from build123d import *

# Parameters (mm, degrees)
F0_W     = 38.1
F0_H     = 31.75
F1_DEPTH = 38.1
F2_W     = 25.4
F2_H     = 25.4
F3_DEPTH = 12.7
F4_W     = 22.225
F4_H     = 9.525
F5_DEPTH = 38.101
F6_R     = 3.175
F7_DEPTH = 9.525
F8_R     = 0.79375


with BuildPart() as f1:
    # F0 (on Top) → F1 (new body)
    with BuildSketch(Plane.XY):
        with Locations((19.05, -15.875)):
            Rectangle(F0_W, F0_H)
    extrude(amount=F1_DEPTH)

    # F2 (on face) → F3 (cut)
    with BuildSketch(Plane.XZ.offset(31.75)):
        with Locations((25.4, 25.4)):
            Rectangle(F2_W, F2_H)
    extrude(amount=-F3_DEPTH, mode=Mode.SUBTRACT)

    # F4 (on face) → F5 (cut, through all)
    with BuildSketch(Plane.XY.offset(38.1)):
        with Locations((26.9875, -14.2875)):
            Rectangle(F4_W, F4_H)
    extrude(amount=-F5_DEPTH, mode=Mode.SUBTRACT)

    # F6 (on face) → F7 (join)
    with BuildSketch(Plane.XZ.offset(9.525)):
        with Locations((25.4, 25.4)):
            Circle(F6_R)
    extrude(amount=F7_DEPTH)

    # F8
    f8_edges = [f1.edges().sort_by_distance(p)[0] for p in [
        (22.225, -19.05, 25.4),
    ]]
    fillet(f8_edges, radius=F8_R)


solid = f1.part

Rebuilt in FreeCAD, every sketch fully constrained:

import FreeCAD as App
import Part
import Sketcher
Q = App.Units.Quantity


def edges_at(feature, points):
    """Names of the edges that pass closest to the given points."""
    edges = feature.Shape.Edges
    near = lambda p: min(range(len(edges)), key=lambda i: edges[i].distToShape(Part.Vertex(*p))[0])
    return sorted({f"Edge{near(p) + 1}" for p in points})

doc = App.newDocument("Part")
params = doc.addObject("Spreadsheet::Sheet", "Params")
for row, (alias, value) in enumerate([
    ("sketch1_width", "1.5 in"),
    ("sketch1_height", "1.25 in"),
    ("pad1_length", "1.5 in"),
    ("sketch2_width", "1 in"),
    ("pocket1_length", "0.5 in"),
    ("sketch3_width", "0.875 in"),
    ("sketch3_height", "0.375 in"),
    ("sketch4_diameter", "0.25 in"),
    ("pad2_length", "0.375 in"),
    ("fillet_radius", "0.03125 in"),
], start=1):
    params.set(f"A{row}", alias)
    params.set(f"B{row}", "=" + value)
    params.setAlias(f"B{row}", alias)

body = doc.addObject("PartDesign::Body", "Body")

sketch1 = body.newObject("Sketcher::SketchObject", "Sketch")
sketch1.AttachmentSupport = (doc.getObject("XY_Plane"), [""])
sketch1.MapMode = "FlatFace"
sketch1.addGeometry(Part.LineSegment(App.Vector(0, 0, 0), App.Vector(0, -31.75, 0)), False)
sketch1.addGeometry(Part.LineSegment(App.Vector(0, -31.75, 0), App.Vector(38.1, -31.75, 0)), False)
sketch1.addGeometry(Part.LineSegment(App.Vector(38.1, -31.75, 0), App.Vector(38.1, 0, 0)), False)
sketch1.addGeometry(Part.LineSegment(App.Vector(38.1, 0, 0), App.Vector(0, 0, 0)), False)
sketch1.addConstraint(Sketcher.Constraint("Coincident", 0, 2, 1, 1))
sketch1.addConstraint(Sketcher.Constraint("Coincident", 1, 2, 2, 1))
sketch1.addConstraint(Sketcher.Constraint("Coincident", 2, 2, 3, 1))
sketch1.addConstraint(Sketcher.Constraint("Coincident", 3, 2, 0, 1))
sketch1.addConstraint(Sketcher.Constraint("Vertical", 0))
sketch1.addConstraint(Sketcher.Constraint("Horizontal", 1))
sketch1.addConstraint(Sketcher.Constraint("Vertical", 2))
sketch1.addConstraint(Sketcher.Constraint("Horizontal", 3))
sketch1.addConstraint(Sketcher.Constraint("Coincident", 3, 2, -1, 1))
sketch1.addConstraint(Sketcher.Constraint("DistanceX", 1, 1, 1, 2, Q("1.5 in")))
sketch1.addConstraint(Sketcher.Constraint("DistanceY", 0, 2, 0, 1, Q("1.25 in")))
sketch1.setExpression("Constraints[9]", "Params.sketch1_width")
sketch1.setExpression("Constraints[10]", "Params.sketch1_height")
pad1 = body.newObject("PartDesign::Pad", "Pad")
pad1.Profile = sketch1
pad1.setExpression("Length", "Params.pad1_length")

sketch2 = body.newObject("Sketcher::SketchObject", "Sketch001")
sketch2.AttachmentSupport = (doc.getObject("XZ_Plane"), [""])
sketch2.MapMode = "FlatFace"
sketch2.AttachmentOffset = App.Placement(App.Vector(0, 0, 1.25 * 25.4), App.Rotation())
sketch2.addGeometry(Part.LineSegment(App.Vector(12.7, 38.1, 0), App.Vector(12.7, 12.7, 0)), False)
sketch2.addGeometry(Part.LineSegment(App.Vector(12.7, 12.7, 0), App.Vector(38.1, 12.7, 0)), False)
sketch2.addGeometry(Part.LineSegment(App.Vector(38.1, 12.7, 0), App.Vector(38.1, 38.1, 0)), False)
sketch2.addGeometry(Part.LineSegment(App.Vector(38.1, 38.1, 0), App.Vector(12.7, 38.1, 0)), False)
sketch2.addConstraint(Sketcher.Constraint("Coincident", 0, 2, 1, 1))
sketch2.addConstraint(Sketcher.Constraint("Coincident", 1, 2, 2, 1))
sketch2.addConstraint(Sketcher.Constraint("Coincident", 2, 2, 3, 1))
sketch2.addConstraint(Sketcher.Constraint("Coincident", 3, 2, 0, 1))
sketch2.addConstraint(Sketcher.Constraint("Vertical", 0))
sketch2.addConstraint(Sketcher.Constraint("Horizontal", 1))
sketch2.addConstraint(Sketcher.Constraint("Vertical", 2))
sketch2.addConstraint(Sketcher.Constraint("Horizontal", 3))
sketch2.addConstraint(Sketcher.Constraint("Equal", 3, 0))
sketch2.addConstraint(Sketcher.Constraint("DistanceX", 1, 1, 1, 2, Q("1 in")))
sketch2.addConstraint(Sketcher.Constraint("DistanceX", -1, 1, 0, 2, Q("0.5 in")))
sketch2.addConstraint(Sketcher.Constraint("DistanceY", -1, 1, 0, 2, Q("0.5 in")))
sketch2.setExpression("Constraints[9]", "Params.sketch2_width")
pocket1 = body.newObject("PartDesign::Pocket", "Pocket")
pocket1.Profile = sketch2
pocket1.setExpression("Length", "Params.pocket1_length")

sketch3 = body.newObject("Sketcher::SketchObject", "Sketch002")
sketch3.AttachmentSupport = (doc.getObject("XY_Plane"), [""])
sketch3.MapMode = "FlatFace"
sketch3.AttachmentOffset = App.Placement(App.Vector(0, 0, 1.5 * 25.4), App.Rotation())
sketch3.addGeometry(Part.LineSegment(App.Vector(15.875, -9.525, 0), App.Vector(15.875, -19.05, 0)), False)
sketch3.addGeometry(Part.LineSegment(App.Vector(15.875, -19.05, 0), App.Vector(38.1, -19.05, 0)), False)
sketch3.addGeometry(Part.LineSegment(App.Vector(38.1, -19.05, 0), App.Vector(38.1, -9.525, 0)), False)
sketch3.addGeometry(Part.LineSegment(App.Vector(38.1, -9.525, 0), App.Vector(15.875, -9.525, 0)), False)
sketch3.addConstraint(Sketcher.Constraint("Coincident", 0, 2, 1, 1))
sketch3.addConstraint(Sketcher.Constraint("Coincident", 1, 2, 2, 1))
sketch3.addConstraint(Sketcher.Constraint("Coincident", 2, 2, 3, 1))
sketch3.addConstraint(Sketcher.Constraint("Coincident", 3, 2, 0, 1))
sketch3.addConstraint(Sketcher.Constraint("Vertical", 0))
sketch3.addConstraint(Sketcher.Constraint("Horizontal", 1))
sketch3.addConstraint(Sketcher.Constraint("Vertical", 2))
sketch3.addConstraint(Sketcher.Constraint("Horizontal", 3))
sketch3.addConstraint(Sketcher.Constraint("DistanceX", -1, 1, 1, 2, Q("1.5 in")))
sketch3.addConstraint(Sketcher.Constraint("DistanceX", 1, 1, 1, 2, Q("0.875 in")))
sketch3.addConstraint(Sketcher.Constraint("DistanceY", 0, 2, 0, 1, Q("0.375 in")))
sketch3.addConstraint(Sketcher.Constraint("DistanceY", 0, 2, -1, 1, Q("0.75 in")))
sketch3.setExpression("Constraints[9]", "Params.sketch3_width")
sketch3.setExpression("Constraints[10]", "Params.sketch3_height")
pocket2 = body.newObject("PartDesign::Pocket", "Pocket001")
pocket2.Profile = sketch3
pocket2.Type = "ThroughAll"

sketch4 = body.newObject("Sketcher::SketchObject", "Sketch003")
sketch4.AttachmentSupport = (doc.getObject("XZ_Plane"), [""])
sketch4.MapMode = "FlatFace"
sketch4.AttachmentOffset = App.Placement(App.Vector(0, 0, 0.375 * 25.4), App.Rotation())
sketch4.addGeometry(Part.Circle(App.Vector(25.4, 25.4, 0), App.Vector(0, 0, 1), 3.175), False)
sketch4.addConstraint(Sketcher.Constraint("Diameter", 0, Q("0.25 in")))
sketch4.addConstraint(Sketcher.Constraint("DistanceX", -1, 1, 0, 3, Q("1 in")))
sketch4.addConstraint(Sketcher.Constraint("DistanceY", -1, 1, 0, 3, Q("1 in")))
sketch4.setExpression("Constraints[0]", "Params.sketch4_diameter")
pad2 = body.newObject("PartDesign::Pad", "Pad001")
pad2.Profile = sketch4
pad2.setExpression("Length", "Params.pad2_length")
doc.recompute()

fillet = body.newObject("PartDesign::Fillet", "Fillet")
fillet.Base = (pad2, edges_at(pad2, [(22.225, -19.05, 25.4)]))
fillet.setExpression("Radius", "Params.fillet_radius")

doc.recompute()
